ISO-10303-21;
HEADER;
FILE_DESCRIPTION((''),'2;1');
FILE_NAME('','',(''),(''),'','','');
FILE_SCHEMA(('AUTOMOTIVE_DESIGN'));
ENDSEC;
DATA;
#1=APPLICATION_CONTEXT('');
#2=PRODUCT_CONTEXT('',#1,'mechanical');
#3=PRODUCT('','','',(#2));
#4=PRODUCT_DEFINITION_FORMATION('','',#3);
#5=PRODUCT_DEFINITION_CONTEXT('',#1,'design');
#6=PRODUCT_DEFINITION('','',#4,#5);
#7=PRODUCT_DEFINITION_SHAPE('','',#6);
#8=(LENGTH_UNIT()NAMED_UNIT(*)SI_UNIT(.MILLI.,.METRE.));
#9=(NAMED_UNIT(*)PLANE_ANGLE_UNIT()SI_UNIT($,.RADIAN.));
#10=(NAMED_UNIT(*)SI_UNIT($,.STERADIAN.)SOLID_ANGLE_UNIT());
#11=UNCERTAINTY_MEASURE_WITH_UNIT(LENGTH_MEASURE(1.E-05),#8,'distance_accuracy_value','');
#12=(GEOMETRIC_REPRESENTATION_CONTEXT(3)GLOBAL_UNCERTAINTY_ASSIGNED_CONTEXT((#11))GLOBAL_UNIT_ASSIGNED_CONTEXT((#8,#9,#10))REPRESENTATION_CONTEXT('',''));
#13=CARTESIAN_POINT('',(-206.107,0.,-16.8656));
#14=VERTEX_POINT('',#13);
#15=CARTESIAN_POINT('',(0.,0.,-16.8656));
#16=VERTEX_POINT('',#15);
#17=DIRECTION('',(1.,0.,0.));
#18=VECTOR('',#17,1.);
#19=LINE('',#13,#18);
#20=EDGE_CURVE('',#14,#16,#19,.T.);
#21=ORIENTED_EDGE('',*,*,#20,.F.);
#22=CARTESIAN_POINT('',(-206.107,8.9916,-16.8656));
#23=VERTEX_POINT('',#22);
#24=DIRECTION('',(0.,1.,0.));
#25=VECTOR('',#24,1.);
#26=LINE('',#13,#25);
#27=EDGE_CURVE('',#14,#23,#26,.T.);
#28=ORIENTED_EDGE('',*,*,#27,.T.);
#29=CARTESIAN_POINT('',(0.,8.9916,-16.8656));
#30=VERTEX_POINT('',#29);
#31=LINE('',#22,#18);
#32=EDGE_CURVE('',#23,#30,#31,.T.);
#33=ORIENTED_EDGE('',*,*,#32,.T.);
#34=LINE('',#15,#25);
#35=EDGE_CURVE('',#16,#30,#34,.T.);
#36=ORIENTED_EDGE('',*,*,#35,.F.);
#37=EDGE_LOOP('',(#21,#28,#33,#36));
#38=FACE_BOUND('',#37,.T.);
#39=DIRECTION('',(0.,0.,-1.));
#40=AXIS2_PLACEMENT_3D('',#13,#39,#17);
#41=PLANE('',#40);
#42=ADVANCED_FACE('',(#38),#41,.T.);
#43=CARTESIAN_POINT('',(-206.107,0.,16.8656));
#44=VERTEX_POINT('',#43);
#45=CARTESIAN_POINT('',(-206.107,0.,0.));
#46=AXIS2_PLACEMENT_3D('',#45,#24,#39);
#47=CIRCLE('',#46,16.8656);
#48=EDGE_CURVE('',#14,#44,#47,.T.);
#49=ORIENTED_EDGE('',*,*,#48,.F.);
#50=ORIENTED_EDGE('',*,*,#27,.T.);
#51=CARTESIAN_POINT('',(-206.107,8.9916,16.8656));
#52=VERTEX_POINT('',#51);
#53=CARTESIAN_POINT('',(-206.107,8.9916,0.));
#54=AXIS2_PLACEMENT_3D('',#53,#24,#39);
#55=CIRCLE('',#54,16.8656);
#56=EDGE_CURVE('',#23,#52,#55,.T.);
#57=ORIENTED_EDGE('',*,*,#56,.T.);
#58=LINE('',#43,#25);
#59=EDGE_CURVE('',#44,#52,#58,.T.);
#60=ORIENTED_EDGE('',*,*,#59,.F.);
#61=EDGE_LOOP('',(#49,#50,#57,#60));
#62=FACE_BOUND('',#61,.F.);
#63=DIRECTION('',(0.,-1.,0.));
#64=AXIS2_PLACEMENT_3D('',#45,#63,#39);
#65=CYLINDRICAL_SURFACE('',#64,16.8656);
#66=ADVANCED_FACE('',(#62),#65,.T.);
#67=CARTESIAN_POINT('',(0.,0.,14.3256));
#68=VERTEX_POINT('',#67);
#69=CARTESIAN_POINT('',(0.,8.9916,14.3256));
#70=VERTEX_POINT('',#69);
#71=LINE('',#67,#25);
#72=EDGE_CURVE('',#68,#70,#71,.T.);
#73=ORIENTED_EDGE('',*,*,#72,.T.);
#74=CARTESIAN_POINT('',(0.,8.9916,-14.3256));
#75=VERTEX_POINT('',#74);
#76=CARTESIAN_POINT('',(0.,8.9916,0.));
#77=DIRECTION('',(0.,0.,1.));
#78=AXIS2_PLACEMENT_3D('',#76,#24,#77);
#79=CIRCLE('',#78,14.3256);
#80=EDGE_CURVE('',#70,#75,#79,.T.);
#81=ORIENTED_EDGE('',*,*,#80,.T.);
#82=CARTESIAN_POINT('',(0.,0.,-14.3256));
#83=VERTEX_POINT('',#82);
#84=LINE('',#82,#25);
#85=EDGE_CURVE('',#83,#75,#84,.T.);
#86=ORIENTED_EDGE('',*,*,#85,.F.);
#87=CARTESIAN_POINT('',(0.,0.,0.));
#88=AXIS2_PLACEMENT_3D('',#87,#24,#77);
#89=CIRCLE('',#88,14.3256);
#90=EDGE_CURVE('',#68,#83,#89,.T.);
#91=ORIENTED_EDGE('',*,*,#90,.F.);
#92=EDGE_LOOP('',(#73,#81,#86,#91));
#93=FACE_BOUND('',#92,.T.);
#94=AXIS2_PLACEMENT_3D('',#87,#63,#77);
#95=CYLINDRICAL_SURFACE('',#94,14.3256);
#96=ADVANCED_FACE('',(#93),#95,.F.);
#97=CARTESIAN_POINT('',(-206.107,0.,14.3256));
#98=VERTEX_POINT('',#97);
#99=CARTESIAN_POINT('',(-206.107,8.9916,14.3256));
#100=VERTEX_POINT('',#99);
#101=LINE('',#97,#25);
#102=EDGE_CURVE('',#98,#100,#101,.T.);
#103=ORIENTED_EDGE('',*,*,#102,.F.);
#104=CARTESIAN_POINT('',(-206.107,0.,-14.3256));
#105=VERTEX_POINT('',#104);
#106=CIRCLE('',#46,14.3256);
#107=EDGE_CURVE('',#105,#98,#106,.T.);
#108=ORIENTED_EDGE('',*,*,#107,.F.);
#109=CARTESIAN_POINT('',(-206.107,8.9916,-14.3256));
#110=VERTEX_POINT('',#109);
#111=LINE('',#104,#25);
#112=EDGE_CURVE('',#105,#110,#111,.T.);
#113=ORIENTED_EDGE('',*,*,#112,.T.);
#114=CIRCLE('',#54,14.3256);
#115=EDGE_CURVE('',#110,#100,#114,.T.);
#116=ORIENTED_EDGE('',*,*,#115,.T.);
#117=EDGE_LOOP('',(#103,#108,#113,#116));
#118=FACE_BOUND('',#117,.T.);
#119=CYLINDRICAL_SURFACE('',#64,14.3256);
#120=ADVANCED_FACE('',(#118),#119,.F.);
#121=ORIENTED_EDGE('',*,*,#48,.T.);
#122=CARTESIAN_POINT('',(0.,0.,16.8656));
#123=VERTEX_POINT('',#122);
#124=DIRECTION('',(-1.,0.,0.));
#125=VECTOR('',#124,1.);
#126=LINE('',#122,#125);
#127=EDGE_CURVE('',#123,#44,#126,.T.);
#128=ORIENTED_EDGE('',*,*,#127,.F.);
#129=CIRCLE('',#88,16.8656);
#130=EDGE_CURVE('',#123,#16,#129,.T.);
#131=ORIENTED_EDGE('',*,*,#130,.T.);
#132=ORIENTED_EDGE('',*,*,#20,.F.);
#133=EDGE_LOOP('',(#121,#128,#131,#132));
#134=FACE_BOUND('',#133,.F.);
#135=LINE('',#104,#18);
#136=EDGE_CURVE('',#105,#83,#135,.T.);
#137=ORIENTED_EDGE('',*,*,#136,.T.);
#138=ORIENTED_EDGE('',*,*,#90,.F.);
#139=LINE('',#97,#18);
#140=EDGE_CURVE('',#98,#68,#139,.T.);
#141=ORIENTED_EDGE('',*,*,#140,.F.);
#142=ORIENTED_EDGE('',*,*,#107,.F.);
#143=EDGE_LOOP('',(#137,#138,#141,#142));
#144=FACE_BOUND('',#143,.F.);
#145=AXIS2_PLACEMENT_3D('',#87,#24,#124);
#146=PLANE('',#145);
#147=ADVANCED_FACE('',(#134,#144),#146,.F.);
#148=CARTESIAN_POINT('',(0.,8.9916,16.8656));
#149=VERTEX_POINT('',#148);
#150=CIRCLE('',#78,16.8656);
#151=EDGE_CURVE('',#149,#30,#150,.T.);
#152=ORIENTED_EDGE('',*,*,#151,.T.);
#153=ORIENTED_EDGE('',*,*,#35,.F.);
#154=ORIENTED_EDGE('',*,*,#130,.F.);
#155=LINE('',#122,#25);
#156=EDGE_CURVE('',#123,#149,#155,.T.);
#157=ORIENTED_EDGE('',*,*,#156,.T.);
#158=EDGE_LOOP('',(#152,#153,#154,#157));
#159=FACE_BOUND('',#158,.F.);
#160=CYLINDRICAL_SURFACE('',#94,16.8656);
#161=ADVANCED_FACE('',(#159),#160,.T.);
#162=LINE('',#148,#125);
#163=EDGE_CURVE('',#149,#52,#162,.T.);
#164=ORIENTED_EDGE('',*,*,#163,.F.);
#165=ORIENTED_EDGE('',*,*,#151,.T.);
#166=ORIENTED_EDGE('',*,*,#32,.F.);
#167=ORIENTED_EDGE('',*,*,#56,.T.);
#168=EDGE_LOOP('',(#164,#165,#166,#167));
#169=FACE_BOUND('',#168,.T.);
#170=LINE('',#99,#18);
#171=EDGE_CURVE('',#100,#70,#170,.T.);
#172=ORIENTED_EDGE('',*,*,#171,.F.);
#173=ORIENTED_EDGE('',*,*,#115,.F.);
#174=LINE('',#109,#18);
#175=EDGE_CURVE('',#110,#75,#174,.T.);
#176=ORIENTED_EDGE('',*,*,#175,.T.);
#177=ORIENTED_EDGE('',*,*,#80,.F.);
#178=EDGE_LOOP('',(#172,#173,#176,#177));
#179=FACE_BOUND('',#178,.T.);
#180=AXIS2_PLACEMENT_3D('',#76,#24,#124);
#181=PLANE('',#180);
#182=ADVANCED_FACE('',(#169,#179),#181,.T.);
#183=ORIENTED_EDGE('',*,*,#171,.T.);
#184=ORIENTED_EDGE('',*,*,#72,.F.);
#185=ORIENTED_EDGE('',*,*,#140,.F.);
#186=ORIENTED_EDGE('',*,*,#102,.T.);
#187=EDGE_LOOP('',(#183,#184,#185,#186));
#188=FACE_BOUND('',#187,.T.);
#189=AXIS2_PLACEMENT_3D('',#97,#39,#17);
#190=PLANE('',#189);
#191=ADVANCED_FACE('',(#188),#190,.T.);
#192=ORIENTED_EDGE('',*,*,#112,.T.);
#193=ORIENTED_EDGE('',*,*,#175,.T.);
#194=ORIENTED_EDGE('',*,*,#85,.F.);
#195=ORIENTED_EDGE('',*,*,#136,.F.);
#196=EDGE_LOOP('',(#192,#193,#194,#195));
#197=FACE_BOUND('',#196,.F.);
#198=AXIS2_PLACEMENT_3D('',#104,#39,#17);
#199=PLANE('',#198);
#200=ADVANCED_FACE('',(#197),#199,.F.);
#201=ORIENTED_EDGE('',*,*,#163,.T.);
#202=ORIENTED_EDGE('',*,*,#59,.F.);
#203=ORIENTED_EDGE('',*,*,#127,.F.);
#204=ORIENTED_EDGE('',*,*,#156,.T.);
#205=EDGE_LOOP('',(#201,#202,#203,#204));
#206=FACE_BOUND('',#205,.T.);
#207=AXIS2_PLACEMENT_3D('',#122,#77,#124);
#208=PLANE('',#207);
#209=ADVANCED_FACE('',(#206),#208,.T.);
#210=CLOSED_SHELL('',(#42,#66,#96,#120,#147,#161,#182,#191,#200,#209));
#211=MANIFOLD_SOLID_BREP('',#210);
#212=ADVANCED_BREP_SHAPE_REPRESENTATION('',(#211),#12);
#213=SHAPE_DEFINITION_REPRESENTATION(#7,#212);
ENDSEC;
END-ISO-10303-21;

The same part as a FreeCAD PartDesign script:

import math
import FreeCAD as App
import Part
import Sketcher
Q = App.Units.Quantity

doc = App.newDocument("Part")
body = doc.addObject("PartDesign::Body", "Body")

# Sketch on XZ plane
sketch1 = body.newObject("Sketcher::SketchObject", "Sketch")
sketch1.AttachmentSupport = (doc.getObject("XZ_Plane"), [""])
sketch1.MapMode = "FlatFace"
sketch1.addGeometry([
    Part.LineSegment(App.Vector(-206.107, 16.8656, 0), App.Vector(0, 16.8656, 0)),  # 0
    Part.ArcOfCircle(Part.Circle(App.Vector(0, 0, 0), App.Vector(0, 0, 1), 16.8656), math.radians(-90), math.radians(90)),  # 1
    Part.LineSegment(App.Vector(0, -16.8656, 0), App.Vector(-206.107, -16.8656, 0)),  # 2
    Part.ArcOfCircle(Part.Circle(App.Vector(-206.107, 0, 0), App.Vector(0, 0, 1), 16.8656), math.radians(90), math.radians(270)),  # 3
    Part.LineSegment(App.Vector(0, 14.3256, 0), App.Vector(-206.107, 14.3256, 0)),  # 4
    Part.ArcOfCircle(Part.Circle(App.Vector(-206.107, 0, 0), App.Vector(0, 0, 1), 14.3256), math.radians(90), math.radians(270)),  # 5
    Part.LineSegment(App.Vector(-206.107, -14.3256, 0), App.Vector(0, -14.3256, 0)),  # 6
    Part.ArcOfCircle(Part.Circle(App.Vector(0, 0, 0), App.Vector(0, 0, 1), 14.3256), math.radians(-90), math.radians(90)),  # 7
], False)
sketch1.addConstraint([
    Sketcher.Constraint("Tangent", 0, 2, 1, 2),
    Sketcher.Constraint("Tangent", 1, 1, 2, 1),
    Sketcher.Constraint("Tangent", 2, 2, 3, 2),
    Sketcher.Constraint("Tangent", 3, 1, 0, 1),
    Sketcher.Constraint("Tangent", 4, 2, 5, 1),
    Sketcher.Constraint("Tangent", 5, 2, 6, 1),
    Sketcher.Constraint("Tangent", 6, 2, 7, 1),
    Sketcher.Constraint("Tangent", 7, 2, 4, 1),
    Sketcher.Constraint("Horizontal", 0),
    Sketcher.Constraint("Horizontal", 2),
    Sketcher.Constraint("Horizontal", 4),
    Sketcher.Constraint("Horizontal", 6),
    Sketcher.Constraint("Coincident", 1, 3, -1, 1),
    Sketcher.Constraint("Coincident", 7, 3, -1, 1),
    Sketcher.Constraint("Vertical", 5, 3, 2, 2),
    Sketcher.Constraint("Radius", 5, Q("0.564 in")),
    Sketcher.Constraint("DistanceY", 4, 2, 3, 1, Q("0.1 in")),
    Sketcher.Constraint("DistanceX", 0, 1, 0, 2, Q("206.107 mm")),
])
pad1 = body.newObject("PartDesign::Pad", "Pad")
pad1.Profile = sketch1
pad1.Length = Q("0.354 in")
pad1.Reversed = True

doc.recompute()
